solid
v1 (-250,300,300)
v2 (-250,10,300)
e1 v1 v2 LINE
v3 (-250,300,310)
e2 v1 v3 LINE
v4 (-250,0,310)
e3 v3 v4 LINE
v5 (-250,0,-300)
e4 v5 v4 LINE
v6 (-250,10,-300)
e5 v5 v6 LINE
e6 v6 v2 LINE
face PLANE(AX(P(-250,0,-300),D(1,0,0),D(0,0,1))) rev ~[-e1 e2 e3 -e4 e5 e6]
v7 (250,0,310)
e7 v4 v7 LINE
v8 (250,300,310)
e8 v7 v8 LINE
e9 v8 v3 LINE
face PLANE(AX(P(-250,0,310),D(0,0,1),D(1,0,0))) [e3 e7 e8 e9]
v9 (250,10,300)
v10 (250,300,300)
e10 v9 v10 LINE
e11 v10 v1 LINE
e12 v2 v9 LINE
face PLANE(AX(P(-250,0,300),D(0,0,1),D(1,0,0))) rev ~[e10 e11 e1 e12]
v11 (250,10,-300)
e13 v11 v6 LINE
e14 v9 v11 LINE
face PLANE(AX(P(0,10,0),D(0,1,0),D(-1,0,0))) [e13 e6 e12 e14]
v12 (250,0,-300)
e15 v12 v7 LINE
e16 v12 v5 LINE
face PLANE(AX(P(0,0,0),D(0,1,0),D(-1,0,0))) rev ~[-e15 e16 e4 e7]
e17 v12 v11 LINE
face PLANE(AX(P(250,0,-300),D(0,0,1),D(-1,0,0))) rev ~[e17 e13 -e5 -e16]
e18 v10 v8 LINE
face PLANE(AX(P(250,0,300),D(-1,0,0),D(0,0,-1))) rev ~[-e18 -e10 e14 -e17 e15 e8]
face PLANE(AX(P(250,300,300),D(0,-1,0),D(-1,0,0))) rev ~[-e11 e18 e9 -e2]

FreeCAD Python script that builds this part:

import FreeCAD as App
import Part
import Sketcher
from FreeCAD import Vector


def add_polygon(sketch, points):
    """Adds a closed chain of lines whose ends are joined by coincident constraints."""
    first, n = sketch.GeometryCount, len(points)
    for a, b in zip(points, points[1:] + points[:1]):
        sketch.addGeometry(Part.LineSegment(App.Vector(*a, 0), App.Vector(*b, 0)), False)
    for i in range(n):
        sketch.addConstraint(Sketcher.Constraint("Coincident", first + i, 2, first + (i + 1) % n, 1))

doc = App.newDocument("Part")
body = doc.addObject("PartDesign::Body", "Body")

sketch1 = doc.addObject("Sketcher::SketchObject", "Sketch")
body.addObject(sketch1)
sketch1.AttachmentSupport = (doc.XZ_Plane, [""])
sketch1.MapMode = "FlatFace"
add_polygon(sketch1, [(-250, -300), (-250, 300), (250, 300), (250, -300)])
sketch1.addConstraint([
    Sketcher.Constraint("Vertical", 0),
    Sketcher.Constraint("Horizontal", 1),
    Sketcher.Constraint("Vertical", 2),
    Sketcher.Constraint("Horizontal", 3),
    Sketcher.Constraint("Symmetric", 0, 2, 2, 2, -1, 1),
    Sketcher.Constraint("DistanceX", 1, 1, 1, 2, 500.0),
    Sketcher.Constraint("DistanceY", 0, 1, 0, 2, 600.0),
])
pad1 = doc.addObject("PartDesign::Pad", "Pad")
body.addObject(pad1)
pad1.Profile = sketch1
pad1.Length = 10
pad1.Reversed = True

sketch2 = doc.addObject("Sketcher::SketchObject", "Sketch001")
body.addObject(sketch2)
sketch2.AttachmentSupport = (doc.XY_Plane, [""])
sketch2.MapMode = "FlatFace"
sketch2.AttachmentOffset = App.Placement(Vector(0, 0, 300), App.Rotation())
add_polygon(sketch2, [(-250, 300), (-250, 0), (250, 0), (250, 300)])
sketch2.addConstraint([
    Sketcher.Constraint("Vertical", 0),
    Sketcher.Constraint("Horizontal", 1),
    Sketcher.Constraint("Vertical", 2),
    Sketcher.Constraint("Horizontal", 3),
    Sketcher.Constraint("Symmetric", 0, 2, 1, 2, -1, 1),
    Sketcher.Constraint("DistanceX", 1, 1, 1, 2, 500.0),
    Sketcher.Constraint("DistanceY", 0, 2, 0, 1, 300.0),
])
pad2 = doc.addObject("PartDesign::Pad", "Pad001")
body.addObject(pad2)
pad2.Profile = sketch2
pad2.Length = 10

doc.recompute()
